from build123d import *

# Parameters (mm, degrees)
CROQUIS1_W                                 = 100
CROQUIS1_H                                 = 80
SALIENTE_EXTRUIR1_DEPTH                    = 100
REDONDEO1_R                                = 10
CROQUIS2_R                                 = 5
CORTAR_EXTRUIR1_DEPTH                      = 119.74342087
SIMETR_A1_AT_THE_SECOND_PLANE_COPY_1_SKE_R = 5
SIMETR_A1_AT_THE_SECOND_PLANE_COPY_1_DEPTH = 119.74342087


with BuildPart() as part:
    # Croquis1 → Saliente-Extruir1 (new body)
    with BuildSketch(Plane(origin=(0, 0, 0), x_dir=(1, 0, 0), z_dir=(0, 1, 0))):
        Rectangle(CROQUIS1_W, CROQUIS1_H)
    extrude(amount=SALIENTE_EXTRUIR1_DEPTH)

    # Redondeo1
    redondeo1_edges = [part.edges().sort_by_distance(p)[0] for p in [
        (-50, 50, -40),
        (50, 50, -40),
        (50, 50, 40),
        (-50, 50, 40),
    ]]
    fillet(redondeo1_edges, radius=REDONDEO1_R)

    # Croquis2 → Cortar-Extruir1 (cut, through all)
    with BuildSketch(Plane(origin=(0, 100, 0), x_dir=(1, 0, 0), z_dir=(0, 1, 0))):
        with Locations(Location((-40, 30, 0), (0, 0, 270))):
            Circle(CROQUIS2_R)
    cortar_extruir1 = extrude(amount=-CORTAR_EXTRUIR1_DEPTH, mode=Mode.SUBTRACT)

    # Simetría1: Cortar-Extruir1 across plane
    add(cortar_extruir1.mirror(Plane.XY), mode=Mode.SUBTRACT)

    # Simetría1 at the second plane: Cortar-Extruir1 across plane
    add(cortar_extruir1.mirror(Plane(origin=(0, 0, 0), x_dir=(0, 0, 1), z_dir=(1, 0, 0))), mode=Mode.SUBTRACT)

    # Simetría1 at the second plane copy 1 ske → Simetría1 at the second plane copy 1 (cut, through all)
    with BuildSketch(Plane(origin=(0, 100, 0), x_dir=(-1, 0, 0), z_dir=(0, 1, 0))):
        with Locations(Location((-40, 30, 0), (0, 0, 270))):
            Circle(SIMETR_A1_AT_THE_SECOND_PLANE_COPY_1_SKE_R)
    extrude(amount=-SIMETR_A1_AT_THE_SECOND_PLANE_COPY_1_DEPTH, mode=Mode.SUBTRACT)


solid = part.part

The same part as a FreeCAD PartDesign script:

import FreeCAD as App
import Part
import Sketcher


def edges_at(feature, points):
    """Names of the edges that pass closest to the given points."""
    edges = feature.Shape.Edges
    near = lambda p: min(range(len(edges)), key=lambda i: edges[i].distToShape(Part.Vertex(*p))[0])
    return sorted({f"Edge{near(p) + 1}" for p in points})


def add_polygon(sketch, points):
    """Adds a closed chain of lines whose ends are joined by coincident constraints."""
    first, n = sketch.GeometryCount, len(points)
    for a, b in zip(points, points[1:] + points[:1]):
        sketch.addGeometry(Part.LineSegment(App.Vector(*a, 0), App.Vector(*b, 0)), False)
    for i in range(n):
        sketch.addConstraint(Sketcher.Constraint("Coincident", first + i, 2, first + (i + 1) % n, 1))

doc = App.newDocument("Part")
body = doc.addObject("PartDesign::Body", "Body")

# Sketch on XZ plane
sketch1 = body.newObject("Sketcher::SketchObject", "Sketch")
sketch1.AttachmentSupport = (doc.getObject("XZ_Plane"), [""])
sketch1.MapMode = "FlatFace"
add_polygon(sketch1, [(-50, -40), (-50, 40), (50, 40), (50, -40)])  # lines 0-3
sketch1.addConstraint([
    Sketcher.Constraint("Vertical", 0),
    Sketcher.Constraint("Horizontal", 1),
    Sketcher.Constraint("Vertical", 2),
    Sketcher.Constraint("Horizontal", 3),
    Sketcher.Constraint("Symmetric", 0, 2, 2, 2, -1, 1),
    Sketcher.Constraint("DistanceX", 1, 1, 1, 2, 100.0),
    Sketcher.Constraint("DistanceY", 0, 1, 0, 2, 80.0),
])
pad1 = body.newObject("PartDesign::Pad", "Pad")
pad1.Profile = sketch1
pad1.Length = 100
pad1.Reversed = True
doc.recompute()

fillet = body.newObject("PartDesign::Fillet", "Fillet")
fillet.Base = (pad1, edges_at(pad1, [
    (-50, 50, -40),
    (50, 50, -40),
    (50, 50, 40),
    (-50, 50, 40),
]))
fillet.Radius = 10

# Sketch on XZ plane
sketch2 = body.newObject("Sketcher::SketchObject", "Sketch001")
sketch2.AttachmentSupport = (doc.getObject("XZ_Plane"), [""])
sketch2.MapMode = "FlatFace"
sketch2.AttachmentOffset = App.Placement(App.Vector(0, 0, -100), App.Rotation())
sketch2.addGeometry(Part.Circle(App.Vector(-40, -30, 0), App.Vector(0, 0, 1), 5), False)
sketch2.addConstraint([
    Sketcher.Constraint("Diameter", 0, 10.0),
    Sketcher.Constraint("DistanceX", 0, 3, -1, 1, 40.0),
    Sketcher.Constraint("DistanceY", 0, 3, -1, 1, 30.0),
])
pocket1 = body.newObject("PartDesign::Pocket", "Pocket")
pocket1.Profile = sketch2
pocket1.Type = "ThroughAll"
pocket1.Reversed = True
doc.recompute()

mirrored = body.newObject("PartDesign::Mirrored", "Mirrored")
mirrored.Originals = [pocket1]
mirrored.MirrorPlane = (doc.getObject("XY_Plane"), [""])
body.Tip = mirrored
doc.recompute()

mirrored2 = body.newObject("PartDesign::Mirrored", "Mirrored001")
mirrored2.Originals = [pocket1]
mirrored2.MirrorPlane = (doc.getObject("YZ_Plane"), [""])
body.Tip = mirrored2

# Sketch on XZ plane
sketch3 = body.newObject("Sketcher::SketchObject", "Sketch002")
sketch3.AttachmentSupport = (doc.getObject("XZ_Plane"), [""])
sketch3.MapMode = "FlatFace"
sketch3.AttachmentOffset = App.Placement(App.Vector(0, 0, -100), App.Rotation())
sketch3.addGeometry(Part.Circle(App.Vector(40, 30, 0), App.Vector(0, 0, 1), 5), False)
sketch3.addConstraint([
    Sketcher.Constraint("Diameter", 0, 10.0),
    Sketcher.Constraint("DistanceX", -1, 1, 0, 3, 40.0),
    Sketcher.Constraint("DistanceY", -1, 1, 0, 3, 30.0),
])
pocket2 = body.newObject("PartDesign::Pocket", "Pocket001")
pocket2.Profile = sketch3
pocket2.Type = "ThroughAll"
pocket2.Reversed = True

doc.recompute()
